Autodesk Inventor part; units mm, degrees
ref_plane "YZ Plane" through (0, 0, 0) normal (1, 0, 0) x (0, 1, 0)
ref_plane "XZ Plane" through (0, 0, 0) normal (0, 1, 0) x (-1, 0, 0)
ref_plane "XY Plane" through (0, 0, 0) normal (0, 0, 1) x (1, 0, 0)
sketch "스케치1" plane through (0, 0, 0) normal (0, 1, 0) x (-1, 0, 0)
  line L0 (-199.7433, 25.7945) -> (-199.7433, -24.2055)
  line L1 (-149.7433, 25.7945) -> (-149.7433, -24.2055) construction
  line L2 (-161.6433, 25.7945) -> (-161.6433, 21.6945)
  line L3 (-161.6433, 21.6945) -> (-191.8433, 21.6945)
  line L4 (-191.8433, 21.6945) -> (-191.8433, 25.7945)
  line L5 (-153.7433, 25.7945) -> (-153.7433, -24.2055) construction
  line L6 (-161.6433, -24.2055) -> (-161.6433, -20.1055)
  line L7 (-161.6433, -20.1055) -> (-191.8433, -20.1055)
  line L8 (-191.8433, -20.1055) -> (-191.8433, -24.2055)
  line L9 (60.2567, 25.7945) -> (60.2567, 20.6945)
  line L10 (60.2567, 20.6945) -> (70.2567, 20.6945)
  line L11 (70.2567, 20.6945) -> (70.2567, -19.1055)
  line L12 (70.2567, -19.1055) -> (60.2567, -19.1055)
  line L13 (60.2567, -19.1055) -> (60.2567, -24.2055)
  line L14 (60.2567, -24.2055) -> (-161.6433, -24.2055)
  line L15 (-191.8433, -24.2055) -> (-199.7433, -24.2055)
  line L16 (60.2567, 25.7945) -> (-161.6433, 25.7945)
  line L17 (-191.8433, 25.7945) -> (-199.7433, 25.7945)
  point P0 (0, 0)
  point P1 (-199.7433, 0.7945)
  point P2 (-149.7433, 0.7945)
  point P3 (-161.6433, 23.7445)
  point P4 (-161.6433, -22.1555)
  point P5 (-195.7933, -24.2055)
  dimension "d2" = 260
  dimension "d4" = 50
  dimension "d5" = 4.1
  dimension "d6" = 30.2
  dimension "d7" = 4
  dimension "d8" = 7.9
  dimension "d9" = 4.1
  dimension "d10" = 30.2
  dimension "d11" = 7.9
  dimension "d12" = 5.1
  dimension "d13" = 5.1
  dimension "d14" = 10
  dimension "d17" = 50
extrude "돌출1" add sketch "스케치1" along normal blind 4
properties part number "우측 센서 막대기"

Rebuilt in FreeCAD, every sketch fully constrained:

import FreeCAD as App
import Part
import Sketcher
Q = App.Units.Quantity

doc = App.newDocument("Part")
params = doc.addObject("Spreadsheet::Sheet", "Params")
for row, (alias, value) in enumerate([
    ("sketch1_width", "10 mm"),
    ("sketch1_height", "50 mm"),
    ("sketch1_width2", "7.9 mm"),
    ("sketch1_width3", "30.2 mm"),
    ("sketch1_height2", "4.1 mm"),
    ("pad1_length", "4 mm"),
], start=1):
    params.set(f"A{row}", alias)
    params.set(f"B{row}", "=" + value)
    params.setAlias(f"B{row}", alias)

body = doc.addObject("PartDesign::Body", "Body")

# Sketch on XZ plane
sketch1 = doc.addObject("Sketcher::SketchObject", "Sketch")
body.addObject(sketch1)
sketch1.AttachmentSupport = (doc.XZ_Plane, [""])
sketch1.MapMode = "FlatFace"
sketch1.addGeometry(Part.LineSegment(App.Vector(191.8433, 25.7945, 0), App.Vector(199.7433, 25.7945, 0)), False)
sketch1.addGeometry(Part.LineSegment(App.Vector(199.7433, 25.7945, 0), App.Vector(199.7433, -24.2055, 0)), False)
sketch1.addGeometry(Part.LineSegment(App.Vector(199.7433, -24.2055, 0), App.Vector(191.8433, -24.2055, 0)), False)
sketch1.addGeometry(Part.LineSegment(App.Vector(191.8433, -24.2055, 0), App.Vector(191.8433, -20.1055, 0)), False)
sketch1.addGeometry(Part.LineSegment(App.Vector(191.8433, -20.1055, 0), App.Vector(161.6433, -20.1055, 0)), False)
sketch1.addGeometry(Part.LineSegment(App.Vector(161.6433, -20.1055, 0), App.Vector(161.6433, -24.2055, 0)), False)
sketch1.addGeometry(Part.LineSegment(App.Vector(161.6433, -24.2055, 0), App.Vector(-60.2567, -24.2055, 0)), False)
sketch1.addGeometry(Part.LineSegment(App.Vector(-60.2567, -24.2055, 0), App.Vector(-60.2567, -19.1055, 0)), False)
sketch1.addGeometry(Part.LineSegment(App.Vector(-60.2567, -19.1055, 0), App.Vector(-70.2567, -19.1055, 0)), False)
sketch1.addGeometry(Part.LineSegment(App.Vector(-70.2567, -19.1055, 0), App.Vector(-70.2567, 20.6945, 0)), False)
sketch1.addGeometry(Part.LineSegment(App.Vector(-70.2567, 20.6945, 0), App.Vector(-60.2567, 20.6945, 0)), False)
sketch1.addGeometry(Part.LineSegment(App.Vector(-60.2567, 20.6945, 0), App.Vector(-60.2567, 25.7945, 0)), False)
sketch1.addGeometry(Part.LineSegment(App.Vector(-60.2567, 25.7945, 0), App.Vector(161.6433, 25.7945, 0)), False)
sketch1.addGeometry(Part.LineSegment(App.Vector(161.6433, 25.7945, 0), App.Vector(161.6433, 21.6945, 0)), False)
sketch1.addGeometry(Part.LineSegment(App.Vector(161.6433, 21.6945, 0), App.Vector(191.8433, 21.6945, 0)), False)
sketch1.addGeometry(Part.LineSegment(App.Vector(191.8433, 21.6945, 0), App.Vector(191.8433, 25.7945, 0)), False)
sketch1.addConstraint(Sketcher.Constraint("Coincident", 0, 2, 1, 1))
sketch1.addConstraint(Sketcher.Constraint("Coincident", 1, 2, 2, 1))
sketch1.addConstraint(Sketcher.Constraint("Coincident", 2, 2, 3, 1))
sketch1.addConstraint(Sketcher.Constraint("Coincident", 3, 2, 4, 1))
sketch1.addConstraint(Sketcher.Constraint("Coincident", 4, 2, 5, 1))
sketch1.addConstraint(Sketcher.Constraint("Coincident", 5, 2, 6, 1))
sketch1.addConstraint(Sketcher.Constraint("Coincident", 6, 2, 7, 1))
sketch1.addConstraint(Sketcher.Constraint("Coincident", 7, 2, 8, 1))
sketch1.addConstraint(Sketcher.Constraint("Coincident", 8, 2, 9, 1))
sketch1.addConstraint(Sketcher.Constraint("Coincident", 9, 2, 10, 1))
sketch1.addConstraint(Sketcher.Constraint("Coincident", 10, 2, 11, 1))
sketch1.addConstraint(Sketcher.Constraint("Coincident", 11, 2, 12, 1))
sketch1.addConstraint(Sketcher.Constraint("Coincident", 12, 2, 13, 1))
sketch1.addConstraint(Sketcher.Constraint("Coincident", 13, 2, 14, 1))
sketch1.addConstraint(Sketcher.Constraint("Coincident", 14, 2, 15, 1))
sketch1.addConstraint(Sketcher.Constraint("Coincident", 15, 2, 0, 1))
sketch1.addConstraint(Sketcher.Constraint("Horizontal", 0))
sketch1.addConstraint(Sketcher.Constraint("Vertical", 1))
sketch1.addConstraint(Sketcher.Constraint("Horizontal", 2))
sketch1.addConstraint(Sketcher.Constraint("Vertical", 3))
sketch1.addConstraint(Sketcher.Constraint("Horizontal", 4))
sketch1.addConstraint(Sketcher.Constraint("Vertical", 5))
sketch1.addConstraint(Sketcher.Constraint("Horizontal", 6))
sketch1.addConstraint(Sketcher.Constraint("Vertical", 7))
sketch1.addConstraint(Sketcher.Constraint("Horizontal", 8))
sketch1.addConstraint(Sketcher.Constraint("Vertical", 9))
sketch1.addConstraint(Sketcher.Constraint("Horizontal", 10))
sketch1.addConstraint(Sketcher.Constraint("Vertical", 11))
sketch1.addConstraint(Sketcher.Constraint("Horizontal", 12))
sketch1.addConstraint(Sketcher.Constraint("Vertical", 13))
sketch1.addConstraint(Sketcher.Constraint("Horizontal", 14))
sketch1.addConstraint(Sketcher.Constraint("Vertical", 15))
sketch1.addConstraint(Sketcher.Constraint("Horizontal", 2, 2, 5, 2))
sketch1.addConstraint(Sketcher.Constraint("Horizontal", 0, 2, 11, 2))
sketch1.addConstraint(Sketcher.Constraint("Vertical", 7, 2, 10, 2))
sketch1.addConstraint(Sketcher.Constraint("Vertical", 5, 2, 12, 2))
sketch1.addConstraint(Sketcher.Constraint("Vertical", 3, 2, 14, 2))
sketch1.addConstraint(Sketcher.Constraint("Equal", 7, 11))
sketch1.addConstraint(Sketcher.Constraint("Equal", 5, 13))
sketch1.addConstraint(Sketcher.Constraint("DistanceX", 8, 2, 8, 1, Q("10 mm")))
sketch1.addConstraint(Sketcher.Constraint("DistanceY", 1, 2, 1, 1, Q("50 mm")))
sketch1.addConstraint(Sketcher.Constraint("DistanceX", 0, 1, 0, 2, Q("7.9 mm")))
sketch1.addConstraint(Sketcher.Constraint("DistanceX", 4, 2, 4, 1, Q("30.2 mm")))
sketch1.addConstraint(Sketcher.Constraint("DistanceY", 3, 1, 3, 2, Q("4.1 mm")))
sketch1.addConstraint(Sketcher.Constraint("DistanceY", 7, 1, 7, 2, Q("5.1 mm")))
sketch1.addConstraint(Sketcher.Constraint("DistanceX", 6, 2, 1, 2, Q("260 mm")))
sketch1.addConstraint(Sketcher.Constraint("DistanceX", -1, 1, 0, 2, Q("199.7433 mm")))
sketch1.addConstraint(Sketcher.Constraint("DistanceY", -1, 1, 0, 2, Q("25.7945 mm")))
sketch1.setExpression("Constraints[39]", "Params.sketch1_width")
sketch1.setExpression("Constraints[40]", "Params.sketch1_height")
sketch1.setExpression("Constraints[41]", "Params.sketch1_width2")
sketch1.setExpression("Constraints[42]", "Params.sketch1_width3")
sketch1.setExpression("Constraints[43]", "Params.sketch1_height2")
pad1 = doc.addObject("PartDesign::Pad", "Pad")
body.addObject(pad1)
pad1.Profile = sketch1
pad1.setExpression("Length", "Params.pad1_length")
pad1.Reversed = True

doc.recompute()
